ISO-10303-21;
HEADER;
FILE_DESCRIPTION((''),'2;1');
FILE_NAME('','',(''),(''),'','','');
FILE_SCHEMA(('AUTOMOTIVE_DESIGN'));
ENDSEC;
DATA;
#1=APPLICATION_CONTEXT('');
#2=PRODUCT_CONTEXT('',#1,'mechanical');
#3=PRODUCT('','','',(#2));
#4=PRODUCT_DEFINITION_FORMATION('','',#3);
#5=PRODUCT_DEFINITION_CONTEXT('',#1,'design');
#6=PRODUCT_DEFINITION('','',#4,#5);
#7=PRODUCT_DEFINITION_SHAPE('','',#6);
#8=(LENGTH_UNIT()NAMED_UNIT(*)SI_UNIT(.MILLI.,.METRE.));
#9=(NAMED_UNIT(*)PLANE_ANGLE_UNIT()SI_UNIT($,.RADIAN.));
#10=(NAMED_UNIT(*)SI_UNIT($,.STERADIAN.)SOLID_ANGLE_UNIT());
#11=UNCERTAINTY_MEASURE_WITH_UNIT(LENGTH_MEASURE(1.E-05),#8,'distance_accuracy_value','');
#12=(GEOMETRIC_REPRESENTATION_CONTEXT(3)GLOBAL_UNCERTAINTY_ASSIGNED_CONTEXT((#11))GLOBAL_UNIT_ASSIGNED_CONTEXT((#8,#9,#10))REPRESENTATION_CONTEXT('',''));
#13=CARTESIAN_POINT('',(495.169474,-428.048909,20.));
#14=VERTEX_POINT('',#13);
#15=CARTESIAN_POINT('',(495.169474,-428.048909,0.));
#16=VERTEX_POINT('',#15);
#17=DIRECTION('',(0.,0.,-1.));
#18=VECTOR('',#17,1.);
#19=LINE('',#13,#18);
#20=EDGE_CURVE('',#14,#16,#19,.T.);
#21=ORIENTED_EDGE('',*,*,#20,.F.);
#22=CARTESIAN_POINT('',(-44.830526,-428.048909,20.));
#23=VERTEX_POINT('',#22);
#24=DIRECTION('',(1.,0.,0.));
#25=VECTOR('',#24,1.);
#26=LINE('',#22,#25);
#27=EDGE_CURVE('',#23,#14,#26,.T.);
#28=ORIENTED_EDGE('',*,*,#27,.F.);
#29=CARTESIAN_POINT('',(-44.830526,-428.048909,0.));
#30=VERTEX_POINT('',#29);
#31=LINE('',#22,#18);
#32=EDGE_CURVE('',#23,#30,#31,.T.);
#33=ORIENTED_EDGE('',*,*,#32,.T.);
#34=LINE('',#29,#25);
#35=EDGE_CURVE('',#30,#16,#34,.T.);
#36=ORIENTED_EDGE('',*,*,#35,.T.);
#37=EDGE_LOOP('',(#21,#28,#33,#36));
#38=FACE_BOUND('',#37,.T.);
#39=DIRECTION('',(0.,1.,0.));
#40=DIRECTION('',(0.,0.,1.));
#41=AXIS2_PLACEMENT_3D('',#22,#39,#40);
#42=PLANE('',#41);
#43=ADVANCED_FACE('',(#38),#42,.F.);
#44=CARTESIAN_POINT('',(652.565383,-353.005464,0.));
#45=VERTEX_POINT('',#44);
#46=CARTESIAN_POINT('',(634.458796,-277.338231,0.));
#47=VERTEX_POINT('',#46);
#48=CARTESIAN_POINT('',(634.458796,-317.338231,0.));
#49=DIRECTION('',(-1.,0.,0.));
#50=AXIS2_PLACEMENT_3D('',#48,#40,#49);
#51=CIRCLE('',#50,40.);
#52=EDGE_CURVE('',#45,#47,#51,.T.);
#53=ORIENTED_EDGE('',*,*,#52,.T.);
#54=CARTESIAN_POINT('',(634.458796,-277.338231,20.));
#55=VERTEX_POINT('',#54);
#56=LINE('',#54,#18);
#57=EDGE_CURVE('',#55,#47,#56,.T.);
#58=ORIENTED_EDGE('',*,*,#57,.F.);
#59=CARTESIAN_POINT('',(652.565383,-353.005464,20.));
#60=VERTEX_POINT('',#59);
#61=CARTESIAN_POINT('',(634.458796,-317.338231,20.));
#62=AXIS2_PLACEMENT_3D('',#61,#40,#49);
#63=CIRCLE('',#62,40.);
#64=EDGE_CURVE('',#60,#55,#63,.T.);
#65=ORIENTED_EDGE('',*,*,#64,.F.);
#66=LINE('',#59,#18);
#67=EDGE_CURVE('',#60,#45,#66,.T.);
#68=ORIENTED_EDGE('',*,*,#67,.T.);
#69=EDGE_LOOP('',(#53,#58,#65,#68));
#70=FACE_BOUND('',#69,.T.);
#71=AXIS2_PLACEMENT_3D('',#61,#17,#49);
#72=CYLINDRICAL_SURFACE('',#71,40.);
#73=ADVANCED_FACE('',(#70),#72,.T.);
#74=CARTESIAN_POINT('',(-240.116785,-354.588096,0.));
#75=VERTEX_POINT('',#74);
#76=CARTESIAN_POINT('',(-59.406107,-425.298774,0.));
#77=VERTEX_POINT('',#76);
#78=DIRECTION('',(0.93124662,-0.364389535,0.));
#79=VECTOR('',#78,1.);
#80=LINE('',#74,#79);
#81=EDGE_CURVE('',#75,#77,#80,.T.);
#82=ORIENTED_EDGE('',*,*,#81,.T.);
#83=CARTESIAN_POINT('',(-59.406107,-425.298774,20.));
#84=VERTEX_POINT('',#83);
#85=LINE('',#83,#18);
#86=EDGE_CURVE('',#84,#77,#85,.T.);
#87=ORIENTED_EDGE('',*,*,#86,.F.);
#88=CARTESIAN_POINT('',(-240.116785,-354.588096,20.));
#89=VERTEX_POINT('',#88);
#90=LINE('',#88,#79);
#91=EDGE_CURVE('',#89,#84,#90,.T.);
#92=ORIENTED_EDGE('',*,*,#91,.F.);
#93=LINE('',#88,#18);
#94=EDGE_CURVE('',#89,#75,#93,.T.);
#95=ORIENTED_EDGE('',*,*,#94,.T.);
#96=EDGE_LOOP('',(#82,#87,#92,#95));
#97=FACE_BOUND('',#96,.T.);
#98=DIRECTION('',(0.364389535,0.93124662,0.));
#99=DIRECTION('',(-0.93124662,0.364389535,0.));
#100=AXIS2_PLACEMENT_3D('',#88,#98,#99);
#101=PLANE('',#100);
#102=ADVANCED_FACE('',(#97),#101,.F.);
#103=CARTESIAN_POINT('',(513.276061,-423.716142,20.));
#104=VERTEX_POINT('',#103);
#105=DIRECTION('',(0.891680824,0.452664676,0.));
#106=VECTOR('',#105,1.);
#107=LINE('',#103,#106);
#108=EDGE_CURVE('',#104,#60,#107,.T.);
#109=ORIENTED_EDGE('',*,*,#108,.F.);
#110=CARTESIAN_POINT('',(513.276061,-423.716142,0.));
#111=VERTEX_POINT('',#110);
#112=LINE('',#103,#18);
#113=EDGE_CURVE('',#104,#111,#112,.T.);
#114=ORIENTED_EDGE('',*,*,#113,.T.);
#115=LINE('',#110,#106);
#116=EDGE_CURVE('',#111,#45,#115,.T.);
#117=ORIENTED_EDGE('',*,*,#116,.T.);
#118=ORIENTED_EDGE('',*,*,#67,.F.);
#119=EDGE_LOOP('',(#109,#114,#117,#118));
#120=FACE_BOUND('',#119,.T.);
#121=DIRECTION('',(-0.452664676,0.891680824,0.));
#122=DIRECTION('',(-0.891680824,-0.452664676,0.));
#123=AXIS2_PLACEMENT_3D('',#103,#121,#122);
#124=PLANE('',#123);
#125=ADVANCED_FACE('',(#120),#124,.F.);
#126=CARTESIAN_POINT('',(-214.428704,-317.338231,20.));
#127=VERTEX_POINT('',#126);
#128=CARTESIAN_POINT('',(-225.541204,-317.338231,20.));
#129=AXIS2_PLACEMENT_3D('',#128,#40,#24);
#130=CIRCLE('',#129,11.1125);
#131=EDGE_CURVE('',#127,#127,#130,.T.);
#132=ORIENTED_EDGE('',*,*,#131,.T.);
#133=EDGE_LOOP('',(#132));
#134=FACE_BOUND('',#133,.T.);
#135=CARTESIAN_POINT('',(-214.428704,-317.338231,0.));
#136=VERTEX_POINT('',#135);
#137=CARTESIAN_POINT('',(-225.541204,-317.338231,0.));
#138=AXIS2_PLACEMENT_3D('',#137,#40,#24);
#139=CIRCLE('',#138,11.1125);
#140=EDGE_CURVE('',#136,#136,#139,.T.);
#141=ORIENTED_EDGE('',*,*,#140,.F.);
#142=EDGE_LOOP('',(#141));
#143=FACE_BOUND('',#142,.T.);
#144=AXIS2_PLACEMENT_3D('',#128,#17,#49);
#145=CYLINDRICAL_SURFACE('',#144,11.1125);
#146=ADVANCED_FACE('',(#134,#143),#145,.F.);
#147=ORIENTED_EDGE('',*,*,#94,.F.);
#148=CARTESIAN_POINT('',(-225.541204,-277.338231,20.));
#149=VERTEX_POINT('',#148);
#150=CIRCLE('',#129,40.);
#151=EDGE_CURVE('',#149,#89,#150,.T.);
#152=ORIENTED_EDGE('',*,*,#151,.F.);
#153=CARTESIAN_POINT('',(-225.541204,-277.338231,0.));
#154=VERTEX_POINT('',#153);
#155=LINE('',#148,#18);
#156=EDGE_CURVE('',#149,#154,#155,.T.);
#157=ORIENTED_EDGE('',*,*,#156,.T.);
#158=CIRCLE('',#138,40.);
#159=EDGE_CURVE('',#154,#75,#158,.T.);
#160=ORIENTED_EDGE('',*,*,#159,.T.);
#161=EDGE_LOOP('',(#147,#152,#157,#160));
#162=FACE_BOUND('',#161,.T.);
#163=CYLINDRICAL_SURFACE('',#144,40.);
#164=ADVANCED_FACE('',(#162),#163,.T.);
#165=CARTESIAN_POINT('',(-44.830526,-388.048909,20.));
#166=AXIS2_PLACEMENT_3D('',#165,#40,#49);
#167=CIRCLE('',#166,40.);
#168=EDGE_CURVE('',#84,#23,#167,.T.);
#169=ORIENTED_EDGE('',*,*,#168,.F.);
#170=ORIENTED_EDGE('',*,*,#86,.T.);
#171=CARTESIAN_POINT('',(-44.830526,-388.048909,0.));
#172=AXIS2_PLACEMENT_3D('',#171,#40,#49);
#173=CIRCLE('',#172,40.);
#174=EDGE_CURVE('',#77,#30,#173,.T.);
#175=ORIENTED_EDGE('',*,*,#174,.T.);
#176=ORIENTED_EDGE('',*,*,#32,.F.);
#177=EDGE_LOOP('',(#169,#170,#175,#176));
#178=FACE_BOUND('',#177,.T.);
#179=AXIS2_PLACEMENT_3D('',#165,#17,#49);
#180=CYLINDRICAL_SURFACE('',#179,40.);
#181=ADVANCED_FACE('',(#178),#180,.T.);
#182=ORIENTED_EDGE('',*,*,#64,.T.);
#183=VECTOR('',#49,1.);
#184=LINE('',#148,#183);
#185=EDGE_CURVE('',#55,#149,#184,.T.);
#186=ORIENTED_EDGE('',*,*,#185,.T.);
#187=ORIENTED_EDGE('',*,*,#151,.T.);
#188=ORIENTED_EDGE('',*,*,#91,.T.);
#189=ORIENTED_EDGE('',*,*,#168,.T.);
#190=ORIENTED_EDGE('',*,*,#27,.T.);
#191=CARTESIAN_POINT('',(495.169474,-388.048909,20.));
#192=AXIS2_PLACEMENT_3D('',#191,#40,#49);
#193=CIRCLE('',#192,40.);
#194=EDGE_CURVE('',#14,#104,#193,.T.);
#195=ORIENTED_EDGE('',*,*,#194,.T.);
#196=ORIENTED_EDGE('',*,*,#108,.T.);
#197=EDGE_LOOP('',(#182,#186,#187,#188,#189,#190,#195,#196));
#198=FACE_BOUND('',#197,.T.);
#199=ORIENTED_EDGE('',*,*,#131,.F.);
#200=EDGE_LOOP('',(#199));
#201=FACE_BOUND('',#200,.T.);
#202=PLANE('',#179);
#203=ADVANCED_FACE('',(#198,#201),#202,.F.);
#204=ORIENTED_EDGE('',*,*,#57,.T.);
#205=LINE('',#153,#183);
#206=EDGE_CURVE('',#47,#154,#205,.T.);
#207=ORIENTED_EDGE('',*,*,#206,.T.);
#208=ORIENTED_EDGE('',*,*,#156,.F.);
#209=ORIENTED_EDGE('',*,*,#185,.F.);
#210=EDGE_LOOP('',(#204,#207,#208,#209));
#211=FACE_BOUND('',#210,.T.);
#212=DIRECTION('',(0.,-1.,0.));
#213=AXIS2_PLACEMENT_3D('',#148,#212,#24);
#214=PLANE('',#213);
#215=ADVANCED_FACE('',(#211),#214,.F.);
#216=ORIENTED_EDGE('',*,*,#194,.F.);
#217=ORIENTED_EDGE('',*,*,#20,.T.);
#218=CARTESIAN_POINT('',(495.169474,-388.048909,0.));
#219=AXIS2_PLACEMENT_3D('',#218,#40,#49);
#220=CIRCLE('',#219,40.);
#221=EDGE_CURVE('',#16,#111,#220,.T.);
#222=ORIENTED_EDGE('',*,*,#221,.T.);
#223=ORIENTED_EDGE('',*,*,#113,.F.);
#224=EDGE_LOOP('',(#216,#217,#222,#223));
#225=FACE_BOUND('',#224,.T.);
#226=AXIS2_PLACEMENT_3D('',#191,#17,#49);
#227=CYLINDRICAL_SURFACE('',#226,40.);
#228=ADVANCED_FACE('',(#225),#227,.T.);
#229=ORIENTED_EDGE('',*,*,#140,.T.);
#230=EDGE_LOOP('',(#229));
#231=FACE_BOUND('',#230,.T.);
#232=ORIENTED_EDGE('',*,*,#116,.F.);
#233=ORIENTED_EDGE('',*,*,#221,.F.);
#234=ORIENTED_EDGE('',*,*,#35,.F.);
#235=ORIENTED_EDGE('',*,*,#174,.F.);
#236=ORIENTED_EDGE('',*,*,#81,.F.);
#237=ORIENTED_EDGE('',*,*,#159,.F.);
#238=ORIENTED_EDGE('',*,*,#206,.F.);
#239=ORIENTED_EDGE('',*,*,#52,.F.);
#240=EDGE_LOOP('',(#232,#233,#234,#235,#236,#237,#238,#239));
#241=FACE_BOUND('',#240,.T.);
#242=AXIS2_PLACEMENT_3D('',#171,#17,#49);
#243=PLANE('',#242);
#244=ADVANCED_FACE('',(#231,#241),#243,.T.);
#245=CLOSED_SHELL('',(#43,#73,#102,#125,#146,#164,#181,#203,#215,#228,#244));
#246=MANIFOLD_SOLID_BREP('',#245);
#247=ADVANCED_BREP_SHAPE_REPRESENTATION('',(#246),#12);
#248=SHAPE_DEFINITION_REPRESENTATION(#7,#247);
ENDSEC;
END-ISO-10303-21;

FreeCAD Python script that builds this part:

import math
import FreeCAD as App
import Part
import Sketcher

V = App.Vector
Q = App.Units.Quantity

doc = App.newDocument("Part")
body = doc.addObject("PartDesign::Body", "Body")

# Sketch on XY plane
sketch1 = body.newObject("Sketcher::SketchObject", "Sketch")
sketch1.AttachmentSupport = (doc.getObject("XY_Plane"), [""])
sketch1.MapMode = "FlatFace"
sketch1.addGeometry(Part.LineSegment(V(-45, -428, 0), V(495, -428, 0)), False)
sketch1.addGeometry(Part.ArcOfCircle(Part.Circle(V(495, -388, 0), V(0, 0, 1), 40), math.radians(-90), math.radians(-63)), False)
sketch1.addGeometry(Part.LineSegment(V(513, -424, 0), V(653, -353, 0)), False)
sketch1.addGeometry(Part.ArcOfCircle(Part.Circle(V(634, -317, 0), V(0, 0, 1), 40), math.radians(-63), math.radians(90)), False)
sketch1.addGeometry(Part.LineSegment(V(634, -277, 0), V(-226, -277, 0)), False)
sketch1.addGeometry(Part.ArcOfCircle(Part.Circle(V(-226, -317, 0), V(0, 0, 1), 40), math.radians(90), math.radians(249)), False)
sketch1.addGeometry(Part.LineSegment(V(-240, -355, 0), V(-59, -425, 0)), False)
sketch1.addGeometry(Part.ArcOfCircle(Part.Circle(V(-45, -388, 0), V(0, 0, 1), 40), math.radians(-111), math.radians(-90)), False)
sketch1.addGeometry(Part.Circle(V(-226, -317, 0), V(0, 0, 1), 11), False)
sketch1.addConstraint(Sketcher.Constraint("Tangent", 0, 2, 1, 1))
sketch1.addConstraint(Sketcher.Constraint("Tangent", 1, 2, 2, 1))
sketch1.addConstraint(Sketcher.Constraint("Tangent", 2, 2, 3, 1))
sketch1.addConstraint(Sketcher.Constraint("Tangent", 3, 2, 4, 1))
sketch1.addConstraint(Sketcher.Constraint("Tangent", 4, 2, 5, 1))
sketch1.addConstraint(Sketcher.Constraint("Tangent", 5, 2, 6, 1))
sketch1.addConstraint(Sketcher.Constraint("Tangent", 6, 2, 7, 1))
sketch1.addConstraint(Sketcher.Constraint("Tangent", 7, 2, 0, 1))
sketch1.addConstraint(Sketcher.Constraint("Horizontal", 0))
sketch1.addConstraint(Sketcher.Constraint("Horizontal", 4))
sketch1.addConstraint(Sketcher.Constraint("Coincident", 8, 3, 5, 3))
sketch1.addConstraint(Sketcher.Constraint("Equal", 1, 3))
sketch1.addConstraint(Sketcher.Constraint("Equal", 3, 5))
sketch1.addConstraint(Sketcher.Constraint("Equal", 5, 7))
sketch1.addConstraint(Sketcher.Constraint("Radius", 1, Q("40 mm")))
sketch1.addConstraint(Sketcher.Constraint("DistanceX", 0, 1, 0, 2, Q("540 mm")))
sketch1.addConstraint(Sketcher.Constraint("DistanceX", 4, 2, 4, 1, Q("860 mm")))
sketch1.addConstraint(Sketcher.Constraint("Diameter", 8, Q("22.225 mm")))
sketch1.addConstraint(Sketcher.Constraint("Angle", 6, Q("-21.370018 deg")))
sketch1.addConstraint(Sketcher.Constraint("Distance", 6, Q("194.052439 mm")))
sketch1.addConstraint(Sketcher.Constraint("DistanceY", 1, 3, -1, 1, Q("388.048909 mm")))
sketch1.addConstraint(Sketcher.Constraint("DistanceX", -1, 1, 1, 2, Q("513.276061 mm")))
pad1 = body.newObject("PartDesign::Pad", "Pad")
pad1.Profile = sketch1
pad1.Length = 20

doc.recompute()
